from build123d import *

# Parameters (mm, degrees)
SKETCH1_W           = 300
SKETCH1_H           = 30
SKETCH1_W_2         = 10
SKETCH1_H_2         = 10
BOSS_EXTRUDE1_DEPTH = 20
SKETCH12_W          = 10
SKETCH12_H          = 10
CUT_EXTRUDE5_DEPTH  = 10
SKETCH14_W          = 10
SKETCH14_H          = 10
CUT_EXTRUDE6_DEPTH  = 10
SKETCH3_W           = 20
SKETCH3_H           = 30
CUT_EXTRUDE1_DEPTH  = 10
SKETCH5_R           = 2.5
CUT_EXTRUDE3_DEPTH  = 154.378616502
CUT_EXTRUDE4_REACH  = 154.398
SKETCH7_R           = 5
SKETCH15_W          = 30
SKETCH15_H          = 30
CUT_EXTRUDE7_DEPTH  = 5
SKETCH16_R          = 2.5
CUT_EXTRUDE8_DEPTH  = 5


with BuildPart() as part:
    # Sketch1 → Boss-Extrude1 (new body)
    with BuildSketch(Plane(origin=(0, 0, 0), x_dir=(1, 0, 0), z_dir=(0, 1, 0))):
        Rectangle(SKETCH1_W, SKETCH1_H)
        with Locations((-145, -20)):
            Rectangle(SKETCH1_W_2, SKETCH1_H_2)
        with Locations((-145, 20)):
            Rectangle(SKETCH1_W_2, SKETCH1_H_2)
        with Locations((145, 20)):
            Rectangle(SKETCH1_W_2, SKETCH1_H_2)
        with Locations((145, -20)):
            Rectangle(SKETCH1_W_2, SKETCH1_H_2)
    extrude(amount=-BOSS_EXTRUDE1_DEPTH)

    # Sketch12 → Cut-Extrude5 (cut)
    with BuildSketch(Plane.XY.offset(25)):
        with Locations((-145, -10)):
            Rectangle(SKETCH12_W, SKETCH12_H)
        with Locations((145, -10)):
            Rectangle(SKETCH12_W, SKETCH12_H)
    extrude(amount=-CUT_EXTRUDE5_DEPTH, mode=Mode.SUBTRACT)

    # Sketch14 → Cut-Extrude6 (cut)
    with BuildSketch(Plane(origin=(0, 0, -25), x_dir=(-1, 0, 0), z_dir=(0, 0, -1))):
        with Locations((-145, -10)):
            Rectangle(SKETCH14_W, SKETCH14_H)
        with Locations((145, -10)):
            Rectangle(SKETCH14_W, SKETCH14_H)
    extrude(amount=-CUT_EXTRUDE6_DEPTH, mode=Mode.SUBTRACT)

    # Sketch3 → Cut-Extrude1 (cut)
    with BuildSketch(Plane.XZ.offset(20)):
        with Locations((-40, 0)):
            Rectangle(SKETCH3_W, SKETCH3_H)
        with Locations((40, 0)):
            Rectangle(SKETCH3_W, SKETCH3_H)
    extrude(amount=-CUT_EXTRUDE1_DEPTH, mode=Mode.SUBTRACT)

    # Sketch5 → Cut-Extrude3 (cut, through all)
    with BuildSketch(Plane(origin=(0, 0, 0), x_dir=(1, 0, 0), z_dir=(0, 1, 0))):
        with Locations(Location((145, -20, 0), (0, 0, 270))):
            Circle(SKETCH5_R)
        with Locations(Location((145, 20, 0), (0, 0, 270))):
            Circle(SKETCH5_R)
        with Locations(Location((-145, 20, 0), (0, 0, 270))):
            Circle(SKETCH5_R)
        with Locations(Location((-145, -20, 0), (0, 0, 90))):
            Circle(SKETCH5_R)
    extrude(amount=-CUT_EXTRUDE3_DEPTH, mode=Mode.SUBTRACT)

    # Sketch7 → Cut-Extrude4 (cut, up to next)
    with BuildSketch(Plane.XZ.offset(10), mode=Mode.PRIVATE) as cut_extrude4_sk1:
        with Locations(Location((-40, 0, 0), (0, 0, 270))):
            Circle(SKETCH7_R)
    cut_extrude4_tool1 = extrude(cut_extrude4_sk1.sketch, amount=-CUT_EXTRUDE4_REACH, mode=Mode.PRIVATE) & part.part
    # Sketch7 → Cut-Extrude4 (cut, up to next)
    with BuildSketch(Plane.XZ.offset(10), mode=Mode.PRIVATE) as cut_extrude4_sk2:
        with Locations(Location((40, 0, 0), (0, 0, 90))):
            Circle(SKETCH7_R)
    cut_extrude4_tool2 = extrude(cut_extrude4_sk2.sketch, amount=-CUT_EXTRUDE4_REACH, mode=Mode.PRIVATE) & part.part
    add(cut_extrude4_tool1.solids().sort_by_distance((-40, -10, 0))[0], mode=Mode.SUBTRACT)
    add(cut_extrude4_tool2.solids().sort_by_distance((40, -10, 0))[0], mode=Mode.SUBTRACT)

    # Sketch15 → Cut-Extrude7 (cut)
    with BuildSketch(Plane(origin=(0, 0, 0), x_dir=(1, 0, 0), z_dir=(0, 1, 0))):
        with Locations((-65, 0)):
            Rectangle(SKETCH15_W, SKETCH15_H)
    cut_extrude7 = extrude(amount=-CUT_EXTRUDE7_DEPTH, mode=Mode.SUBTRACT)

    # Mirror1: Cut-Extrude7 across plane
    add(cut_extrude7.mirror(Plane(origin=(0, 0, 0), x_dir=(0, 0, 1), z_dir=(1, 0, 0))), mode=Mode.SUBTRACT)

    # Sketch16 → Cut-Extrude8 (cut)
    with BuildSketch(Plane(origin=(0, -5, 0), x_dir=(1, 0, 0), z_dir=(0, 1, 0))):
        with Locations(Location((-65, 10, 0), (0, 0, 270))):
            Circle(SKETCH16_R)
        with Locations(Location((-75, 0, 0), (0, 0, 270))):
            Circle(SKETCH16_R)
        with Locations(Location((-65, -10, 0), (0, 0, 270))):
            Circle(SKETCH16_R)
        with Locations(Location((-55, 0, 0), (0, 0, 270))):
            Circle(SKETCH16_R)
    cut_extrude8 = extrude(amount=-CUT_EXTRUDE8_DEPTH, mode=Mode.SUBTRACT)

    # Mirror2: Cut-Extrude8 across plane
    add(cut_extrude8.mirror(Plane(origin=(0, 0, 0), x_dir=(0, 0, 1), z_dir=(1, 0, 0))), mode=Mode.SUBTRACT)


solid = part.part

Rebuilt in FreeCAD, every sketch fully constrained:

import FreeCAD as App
import Part
import Sketcher

doc = App.newDocument("Part")
body = doc.addObject("PartDesign::Body", "Body")

# Sketch on XZ plane
sketch1 = body.newObject("Sketcher::SketchObject", "Sketch")
sketch1.AttachmentSupport = (doc.getObject("XZ_Plane"), [""])
sketch1.MapMode = "FlatFace"
sketch1.addGeometry(Part.LineSegment(App.Vector(-150, 25, 0), App.Vector(-140, 25, 0)), False)
sketch1.addGeometry(Part.LineSegment(App.Vector(-140, 25, 0), App.Vector(-140, 15, 0)), False)
sketch1.addGeometry(Part.LineSegment(App.Vector(-140, 15, 0), App.Vector(140, 15, 0)), False)
sketch1.addGeometry(Part.LineSegment(App.Vector(140, 15, 0), App.Vector(140, 25, 0)), False)
sketch1.addGeometry(Part.LineSegment(App.Vector(140, 25, 0), App.Vector(150, 25, 0)), False)
sketch1.addGeometry(Part.LineSegment(App.Vector(150, 25, 0), App.Vector(150, -25, 0)), False)
sketch1.addGeometry(Part.LineSegment(App.Vector(150, -25, 0), App.Vector(140, -25, 0)), False)
sketch1.addGeometry(Part.LineSegment(App.Vector(140, -25, 0), App.Vector(140, -15, 0)), False)
sketch1.addGeometry(Part.LineSegment(App.Vector(140, -15, 0), App.Vector(-140, -15, 0)), False)
sketch1.addGeometry(Part.LineSegment(App.Vector(-140, -15, 0), App.Vector(-140, -25, 0)), False)
sketch1.addGeometry(Part.LineSegment(App.Vector(-140, -25, 0), App.Vector(-150, -25, 0)), False)
sketch1.addGeometry(Part.LineSegment(App.Vector(-150, -25, 0), App.Vector(-150, 25, 0)), False)
sketch1.addConstraint(Sketcher.Constraint("Coincident", 0, 2, 1, 1))
sketch1.addConstraint(Sketcher.Constraint("Coincident", 1, 2, 2, 1))
sketch1.addConstraint(Sketcher.Constraint("Coincident", 2, 2, 3, 1))
sketch1.addConstraint(Sketcher.Constraint("Coincident", 3, 2, 4, 1))
sketch1.addConstraint(Sketcher.Constraint("Coincident", 4, 2, 5, 1))
sketch1.addConstraint(Sketcher.Constraint("Coincident", 5, 2, 6, 1))
sketch1.addConstraint(Sketcher.Constraint("Coincident", 6, 2, 7, 1))
sketch1.addConstraint(Sketcher.Constraint("Coincident", 7, 2, 8, 1))
sketch1.addConstraint(Sketcher.Constraint("Coincident", 8, 2, 9, 1))
sketch1.addConstraint(Sketcher.Constraint("Coincident", 9, 2, 10, 1))
sketch1.addConstraint(Sketcher.Constraint("Coincident", 10, 2, 11, 1))
sketch1.addConstraint(Sketcher.Constraint("Coincident", 11, 2, 0, 1))
sketch1.addConstraint(Sketcher.Constraint("Horizontal", 0))
sketch1.addConstraint(Sketcher.Constraint("Vertical", 1))
sketch1.addConstraint(Sketcher.Constraint("Horizontal", 2))
sketch1.addConstraint(Sketcher.Constraint("Vertical", 3))
sketch1.addConstraint(Sketcher.Constraint("Horizontal", 4))
sketch1.addConstraint(Sketcher.Constraint("Vertical", 5))
sketch1.addConstraint(Sketcher.Constraint("Horizontal", 6))
sketch1.addConstraint(Sketcher.Constraint("Vertical", 7))
sketch1.addConstraint(Sketcher.Constraint("Horizontal", 8))
sketch1.addConstraint(Sketcher.Constraint("Vertical", 9))
sketch1.addConstraint(Sketcher.Constraint("Horizontal", 10))
sketch1.addConstraint(Sketcher.Constraint("Vertical", 11))
sketch1.addConstraint(Sketcher.Constraint("Symmetric", 0, 2, 6, 2, -1, 1))
sketch1.addConstraint(Sketcher.Constraint("Symmetric", 2, 2, 8, 2, -1, 1))
sketch1.addConstraint(Sketcher.Constraint("Symmetric", 4, 2, 10, 2, -1, 1))
sketch1.addConstraint(Sketcher.Constraint("Symmetric", 0, 2, 3, 2, -2))
sketch1.addConstraint(Sketcher.Constraint("Equal", 10, 1))
sketch1.addConstraint(Sketcher.Constraint("DistanceX", 0, 1, 0, 2, 10.0))
sketch1.addConstraint(Sketcher.Constraint("DistanceX", 2, 1, 2, 2, 280.0))
sketch1.addConstraint(Sketcher.Constraint("DistanceY", 5, 2, 5, 1, 50.0))
pad1 = body.newObject("PartDesign::Pad", "Pad")
pad1.Profile = sketch1
pad1.Length = 20

# Sketch on XY plane
sketch2 = body.newObject("Sketcher::SketchObject", "Sketch001")
sketch2.AttachmentSupport = (doc.getObject("XY_Plane"), [""])
sketch2.MapMode = "FlatFace"
sketch2.AttachmentOffset = App.Placement(App.Vector(0, 0, 25), App.Rotation())
sketch2.addGeometry(Part.LineSegment(App.Vector(-150, -5, 0), App.Vector(-150, -15, 0)), False)
sketch2.addGeometry(Part.LineSegment(App.Vector(-150, -15, 0), App.Vector(-140, -15, 0)), False)
sketch2.addGeometry(Part.LineSegment(App.Vector(-140, -15, 0), App.Vector(-140, -5, 0)), False)
sketch2.addGeometry(Part.LineSegment(App.Vector(-140, -5, 0), App.Vector(-150, -5, 0)), False)
sketch2.addGeometry(Part.LineSegment(App.Vector(140, -5, 0), App.Vector(140, -15, 0)), False)
sketch2.addGeometry(Part.LineSegment(App.Vector(140, -15, 0), App.Vector(150, -15, 0)), False)
sketch2.addGeometry(Part.LineSegment(App.Vector(150, -15, 0), App.Vector(150, -5, 0)), False)
sketch2.addGeometry(Part.LineSegment(App.Vector(150, -5, 0), App.Vector(140, -5, 0)), False)
sketch2.addConstraint(Sketcher.Constraint("Coincident", 0, 2, 1, 1))
sketch2.addConstraint(Sketcher.Constraint("Coincident", 1, 2, 2, 1))
sketch2.addConstraint(Sketcher.Constraint("Coincident", 2, 2, 3, 1))
sketch2.addConstraint(Sketcher.Constraint("Coincident", 3, 2, 0, 1))
sketch2.addConstraint(Sketcher.Constraint("Coincident", 4, 2, 5, 1))
sketch2.addConstraint(Sketcher.Constraint("Coincident", 5, 2, 6, 1))
sketch2.addConstraint(Sketcher.Constraint("Coincident", 6, 2, 7, 1))
sketch2.addConstraint(Sketcher.Constraint("Coincident", 7, 2, 4, 1))
sketch2.addConstraint(Sketcher.Constraint("Vertical", 0))
sketch2.addConstraint(Sketcher.Constraint("Horizontal", 1))
sketch2.addConstraint(Sketcher.Constraint("Vertical", 2))
sketch2.addConstraint(Sketcher.Constraint("Horizontal", 3))
sketch2.addConstraint(Sketcher.Constraint("Vertical", 4))
sketch2.addConstraint(Sketcher.Constraint("Horizontal", 5))
sketch2.addConstraint(Sketcher.Constraint("Vertical", 6))
sketch2.addConstraint(Sketcher.Constraint("Horizontal", 7))
sketch2.addConstraint(Sketcher.Constraint("Symmetric", 1, 2, 4, 2, -2))
sketch2.addConstraint(Sketcher.Constraint("Symmetric", 3, 2, 6, 2, -2))
sketch2.addConstraint(Sketcher.Constraint("Equal", 7, 0))
sketch2.addConstraint(Sketcher.Constraint("DistanceX", 1, 1, 1, 2, 10.0))
sketch2.addConstraint(Sketcher.Constraint("DistanceX", 0, 2, -1, 1, 150.0))
sketch2.addConstraint(Sketcher.Constraint("DistanceY", 0, 2, -1, 1, 15.0))
pocket1 = body.newObject("PartDesign::Pocket", "Pocket")
pocket1.Profile = sketch2
pocket1.Length = 10

# Sketch on XY plane
sketch3 = body.newObject("Sketcher::SketchObject", "Sketch002")
sketch3.AttachmentSupport = (doc.getObject("XY_Plane"), [""])
sketch3.MapMode = "FlatFace"
sketch3.AttachmentOffset = App.Placement(App.Vector(0, 0, -25), App.Rotation())
sketch3.addGeometry(Part.LineSegment(App.Vector(150, -5, 0), App.Vector(150, -15, 0)), False)
sketch3.addGeometry(Part.LineSegment(App.Vector(150, -15, 0), App.Vector(140, -15, 0)), False)
sketch3.addGeometry(Part.LineSegment(App.Vector(140, -15, 0), App.Vector(140, -5, 0)), False)
sketch3.addGeometry(Part.LineSegment(App.Vector(140, -5, 0), App.Vector(150, -5, 0)), False)
sketch3.addGeometry(Part.LineSegment(App.Vector(-140, -5, 0), App.Vector(-140, -15, 0)), False)
sketch3.addGeometry(Part.LineSegment(App.Vector(-140, -15, 0), App.Vector(-150, -15, 0)), False)
sketch3.addGeometry(Part.LineSegment(App.Vector(-150, -15, 0), App.Vector(-150, -5, 0)), False)
sketch3.addGeometry(Part.LineSegment(App.Vector(-150, -5, 0), App.Vector(-140, -5, 0)), False)
sketch3.addConstraint(Sketcher.Constraint("Coincident", 0, 2, 1, 1))
sketch3.addConstraint(Sketcher.Constraint("Coincident", 1, 2, 2, 1))
sketch3.addConstraint(Sketcher.Constraint("Coincident", 2, 2, 3, 1))
sketch3.addConstraint(Sketcher.Constraint("Coincident", 3, 2, 0, 1))
sketch3.addConstraint(Sketcher.Constraint("Coincident", 4, 2, 5, 1))
sketch3.addConstraint(Sketcher.Constraint("Coincident", 5, 2, 6, 1))
sketch3.addConstraint(Sketcher.Constraint("Coincident", 6, 2, 7, 1))
sketch3.addConstraint(Sketcher.Constraint("Coincident", 7, 2, 4, 1))
sketch3.addConstraint(Sketcher.Constraint("Vertical", 0))
sketch3.addConstraint(Sketcher.Constraint("Horizontal", 1))
sketch3.addConstraint(Sketcher.Constraint("Vertical", 2))
sketch3.addConstraint(Sketcher.Constraint("Horizontal", 3))
sketch3.addConstraint(Sketcher.Constraint("Vertical", 4))
sketch3.addConstraint(Sketcher.Constraint("Horizontal", 5))
sketch3.addConstraint(Sketcher.Constraint("Vertical", 6))
sketch3.addConstraint(Sketcher.Constraint("Horizontal", 7))
sketch3.addConstraint(Sketcher.Constraint("Symmetric", 1, 2, 4, 2, -2))
sketch3.addConstraint(Sketcher.Constraint("Symmetric", 3, 2, 6, 2, -2))
sketch3.addConstraint(Sketcher.Constraint("Equal", 7, 0))
sketch3.addConstraint(Sketcher.Constraint("DistanceX", 1, 2, 1, 1, 10.0))
sketch3.addConstraint(Sketcher.Constraint("DistanceX", -1, 1, 0, 2, 150.0))
sketch3.addConstraint(Sketcher.Constraint("DistanceY", 0, 2, -1, 1, 15.0))
pocket2 = body.newObject("PartDesign::Pocket", "Pocket001")
pocket2.Profile = sketch3
pocket2.Length = 10
pocket2.Reversed = True

# Sketch on XZ plane
sketch4 = body.newObject("Sketcher::SketchObject", "Sketch003")
sketch4.AttachmentSupport = (doc.getObject("XZ_Plane"), [""])
sketch4.MapMode = "FlatFace"
sketch4.AttachmentOffset = App.Placement(App.Vector(0, 0, 20), App.Rotation())
sketch4.addGeometry(Part.LineSegment(App.Vector(-50, 15, 0), App.Vector(-50, -15, 0)), False)
sketch4.addGeometry(Part.LineSegment(App.Vector(-50, -15, 0), App.Vector(-30, -15, 0)), False)
sketch4.addGeometry(Part.LineSegment(App.Vector(-30, -15, 0), App.Vector(-30, 15, 0)), False)
sketch4.addGeometry(Part.LineSegment(App.Vector(-30, 15, 0), App.Vector(-50, 15, 0)), False)
sketch4.addGeometry(Part.LineSegment(App.Vector(30, 15, 0), App.Vector(30, -15, 0)), False)
sketch4.addGeometry(Part.LineSegment(App.Vector(30, -15, 0), App.Vector(50, -15, 0)), False)
sketch4.addGeometry(Part.LineSegment(App.Vector(50, -15, 0), App.Vector(50, 15, 0)), False)
sketch4.addGeometry(Part.LineSegment(App.Vector(50, 15, 0), App.Vector(30, 15, 0)), False)
sketch4.addConstraint(Sketcher.Constraint("Coincident", 0, 2, 1, 1))
sketch4.addConstraint(Sketcher.Constraint("Coincident", 1, 2, 2, 1))
sketch4.addConstraint(Sketcher.Constraint("Coincident", 2, 2, 3, 1))
sketch4.addConstraint(Sketcher.Constraint("Coincident", 3, 2, 0, 1))
sketch4.addConstraint(Sketcher.Constraint("Coincident", 4, 2, 5, 1))
sketch4.addConstraint(Sketcher.Constraint("Coincident", 5, 2, 6, 1))
sketch4.addConstraint(Sketcher.Constraint("Coincident", 6, 2, 7, 1))
sketch4.addConstraint(Sketcher.Constraint("Coincident", 7, 2, 4, 1))
sketch4.addConstraint(Sketcher.Constraint("Vertical", 0))
sketch4.addConstraint(Sketcher.Constraint("Horizontal", 1))
sketch4.addConstraint(Sketcher.Constraint("Vertical", 2))
sketch4.addConstraint(Sketcher.Constraint("Horizontal", 3))
sketch4.addConstraint(Sketcher.Constraint("Vertical", 4))
sketch4.addConstraint(Sketcher.Constraint("Horizontal", 5))
sketch4.addConstraint(Sketcher.Constraint("Vertical", 6))
sketch4.addConstraint(Sketcher.Constraint("Horizontal", 7))
sketch4.addConstraint(Sketcher.Constraint("Symmetric", 2, 2, 4, 2, -1, 1))
sketch4.addConstraint(Sketcher.Constraint("Symmetric", 0, 2, 6, 2, -1, 1))
sketch4.addConstraint(Sketcher.Constraint("Horizontal", 1, 2, 4, 2))
sketch4.addConstraint(Sketcher.Constraint("DistanceX", 1, 1, 1, 2, 20.0))
sketch4.addConstraint(Sketcher.Constraint("DistanceY", 0, 2, 0, 1, 30.0))
sketch4.addConstraint(Sketcher.Constraint("DistanceX", 0, 2, -1, 1, 50.0))
pocket3 = body.newObject("PartDesign::Pocket", "Pocket002")
pocket3.Profile = sketch4
pocket3.Length = 10

# Sketch on XZ plane
sketch5 = body.newObject("Sketcher::SketchObject", "Sketch004")
sketch5.AttachmentSupport = (doc.getObject("XZ_Plane"), [""])
sketch5.MapMode = "FlatFace"
sketch5.addGeometry(Part.Circle(App.Vector(145, 20, 0), App.Vector(0, 0, 1), 2.5), False)
sketch5.addGeometry(Part.Circle(App.Vector(145, -20, 0), App.Vector(0, 0, 1), 2.5), False)
sketch5.addGeometry(Part.Circle(App.Vector(-145, -20, 0), App.Vector(0, 0, 1), 2.5), False)
sketch5.addGeometry(Part.Circle(App.Vector(-145, 20, 0), App.Vector(0, 0, 1), 2.5), False)
sketch5.addConstraint(Sketcher.Constraint("Equal", 0, 1))
sketch5.addConstraint(Sketcher.Constraint("Equal", 1, 2))
sketch5.addConstraint(Sketcher.Constraint("Equal", 2, 3))
sketch5.addConstraint(Sketcher.Constraint("Symmetric", 0, 3, 2, 3, -1, 1))
sketch5.addConstraint(Sketcher.Constraint("Symmetric", 1, 3, 3, 3, -1, 1))
sketch5.addConstraint(Sketcher.Constraint("Symmetric", 1, 3, 2, 3, -2))
sketch5.addConstraint(Sketcher.Constraint("Diameter", 0, 5.0))
sketch5.addConstraint(Sketcher.Constraint("DistanceX", -1, 1, 0, 3, 145.0))
sketch5.addConstraint(Sketcher.Constraint("DistanceY", -1, 1, 0, 3, 20.0))
pocket4 = body.newObject("PartDesign::Pocket", "Pocket003")
pocket4.Profile = sketch5
pocket4.Type = "ThroughAll"
pocket4.Reversed = True

# Sketch on XZ plane
sketch6 = body.newObject("Sketcher::SketchObject", "Sketch005")
sketch6.AttachmentSupport = (doc.getObject("XZ_Plane"), [""])
sketch6.MapMode = "FlatFace"
sketch6.AttachmentOffset = App.Placement(App.Vector(0, 0, 10), App.Rotation())
sketch6.addGeometry(Part.Circle(App.Vector(-40, 0, 0), App.Vector(0, 0, 1), 5), False)
sketch6.addConstraint(Sketcher.Constraint("PointOnObject", 0, 3, -1))
sketch6.addConstraint(Sketcher.Constraint("Diameter", 0, 10.0))
sketch6.addConstraint(Sketcher.Constraint("DistanceX", 0, 3, -1, 1, 40.0))
pocket5 = body.newObject("PartDesign::Pocket", "Pocket004")
pocket5.Profile = sketch6
pocket5.Type = "UpToFirst"

# Sketch on XZ plane
sketch7 = body.newObject("Sketcher::SketchObject", "Sketch006")
sketch7.AttachmentSupport = (doc.getObject("XZ_Plane"), [""])
sketch7.MapMode = "FlatFace"
sketch7.AttachmentOffset = App.Placement(App.Vector(0, 0, 10), App.Rotation())
sketch7.addGeometry(Part.Circle(App.Vector(40, 0, 0), App.Vector(0, 0, 1), 5), False)
sketch7.addConstraint(Sketcher.Constraint("PointOnObject", 0, 3, -1))
sketch7.addConstraint(Sketcher.Constraint("Diameter", 0, 10.0))
sketch7.addConstraint(Sketcher.Constraint("DistanceX", -1, 1, 0, 3, 40.0))
pocket6 = body.newObject("PartDesign::Pocket", "Pocket005")
pocket6.Profile = sketch7
pocket6.Type = "UpToFirst"

# Sketch on XZ plane
sketch8 = body.newObject("Sketcher::SketchObject", "Sketch007")
sketch8.AttachmentSupport = (doc.getObject("XZ_Plane"), [""])
sketch8.MapMode = "FlatFace"
sketch8.addGeometry(Part.LineSegment(App.Vector(-80, -15, 0), App.Vector(-80, 15, 0)), False)
sketch8.addGeometry(Part.LineSegment(App.Vector(-80, 15, 0), App.Vector(-50, 15, 0)), False)
sketch8.addGeometry(Part.LineSegment(App.Vector(-50, 15, 0), App.Vector(-50, -15, 0)), False)
sketch8.addGeometry(Part.LineSegment(App.Vector(-50, -15, 0), App.Vector(-80, -15, 0)), False)
sketch8.addConstraint(Sketcher.Constraint("Coincident", 0, 2, 1, 1))
sketch8.addConstraint(Sketcher.Constraint("Coincident", 1, 2, 2, 1))
sketch8.addConstraint(Sketcher.Constraint("Coincident", 2, 2, 3, 1))
sketch8.addConstraint(Sketcher.Constraint("Coincident", 3, 2, 0, 1))
sketch8.addConstraint(Sketcher.Constraint("Vertical", 0))
sketch8.addConstraint(Sketcher.Constraint("Horizontal", 1))
sketch8.addConstraint(Sketcher.Constraint("Vertical", 2))
sketch8.addConstraint(Sketcher.Constraint("Horizontal", 3))
sketch8.addConstraint(Sketcher.Constraint("Equal", 3, 0))
sketch8.addConstraint(Sketcher.Constraint("DistanceX", 1, 1, 1, 2, 30.0))
sketch8.addConstraint(Sketcher.Constraint("DistanceX", 0, 2, -1, 1, 80.0))
sketch8.addConstraint(Sketcher.Constraint("DistanceY", -1, 1, 0, 2, 15.0))
pocket7 = body.newObject("PartDesign::Pocket", "Pocket006")
pocket7.Profile = sketch8
pocket7.Length = 5
pocket7.Reversed = True
doc.recompute()

mirrored = body.newObject("PartDesign::Mirrored", "Mirrored")
mirrored.Originals = [pocket7]
mirrored.MirrorPlane = (doc.getObject("YZ_Plane"), [""])
body.Tip = mirrored

# Sketch on XZ plane
sketch9 = body.newObject("Sketcher::SketchObject", "Sketch008")
sketch9.AttachmentSupport = (doc.getObject("XZ_Plane"), [""])
sketch9.MapMode = "FlatFace"
sketch9.AttachmentOffset = App.Placement(App.Vector(0, 0, 5), App.Rotation())
sketch9.addGeometry(Part.Circle(App.Vector(-65, -10, 0), App.Vector(0, 0, 1), 2.5), False)
sketch9.addGeometry(Part.Circle(App.Vector(-75, 0, 0), App.Vector(0, 0, 1), 2.5), False)
sketch9.addGeometry(Part.Circle(App.Vector(-65, 10, 0), App.Vector(0, 0, 1), 2.5), False)
sketch9.addGeometry(Part.Circle(App.Vector(-55, 0, 0), App.Vector(0, 0, 1), 2.5), False)
sketch9.addConstraint(Sketcher.Constraint("Equal", 0, 1))
sketch9.addConstraint(Sketcher.Constraint("Equal", 1, 2))
sketch9.addConstraint(Sketcher.Constraint("Equal", 2, 3))
sketch9.addConstraint(Sketcher.Constraint("Symmetric", 0, 3, 2, 3, -1))
sketch9.addConstraint(Sketcher.Constraint("PointOnObject", 1, 3, -1))
sketch9.addConstraint(Sketcher.Constraint("PointOnObject", 3, 3, -1))
sketch9.addConstraint(Sketcher.Constraint("Diameter", 0, 5.0))
sketch9.addConstraint(Sketcher.Constraint("DistanceX", 0, 3, -1, 1, 65.0))
sketch9.addConstraint(Sketcher.Constraint("DistanceY", 0, 3, -1, 1, 10.0))
sketch9.addConstraint(Sketcher.Constraint("DistanceX", 1, 3, -1, 1, 75.0))
sketch9.addConstraint(Sketcher.Constraint("DistanceX", 3, 3, -1, 1, 55.0))
pocket8 = body.newObject("PartDesign::Pocket", "Pocket007")
pocket8.Profile = sketch9
pocket8.Length = 5
pocket8.Reversed = True
doc.recompute()

mirrored2 = body.newObject("PartDesign::Mirrored", "Mirrored001")
mirrored2.Originals = [pocket8]
mirrored2.MirrorPlane = (doc.getObject("YZ_Plane"), [""])
body.Tip = mirrored2

doc.recompute()
